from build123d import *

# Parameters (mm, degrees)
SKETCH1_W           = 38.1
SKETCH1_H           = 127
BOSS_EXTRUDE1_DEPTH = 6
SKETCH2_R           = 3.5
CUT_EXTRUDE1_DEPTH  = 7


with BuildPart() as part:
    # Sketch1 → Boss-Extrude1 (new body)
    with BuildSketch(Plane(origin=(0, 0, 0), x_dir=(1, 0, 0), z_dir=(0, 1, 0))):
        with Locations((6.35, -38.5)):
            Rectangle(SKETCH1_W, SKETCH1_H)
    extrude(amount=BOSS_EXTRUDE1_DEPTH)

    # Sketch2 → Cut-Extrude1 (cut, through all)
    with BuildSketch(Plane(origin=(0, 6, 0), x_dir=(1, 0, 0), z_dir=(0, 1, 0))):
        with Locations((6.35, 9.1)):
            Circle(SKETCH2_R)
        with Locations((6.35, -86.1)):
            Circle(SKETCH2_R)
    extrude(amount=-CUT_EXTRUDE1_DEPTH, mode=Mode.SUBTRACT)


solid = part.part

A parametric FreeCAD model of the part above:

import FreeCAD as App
import Part
import Sketcher


def add_polygon(sketch, points):
    """Adds a closed chain of lines whose ends are joined by coincident constraints."""
    first, n = sketch.GeometryCount, len(points)
    for a, b in zip(points, points[1:] + points[:1]):
        sketch.addGeometry(Part.LineSegment(App.Vector(*a, 0), App.Vector(*b, 0)), False)
    for i in range(n):
        sketch.addConstraint(Sketcher.Constraint("Coincident", first + i, 2, first + (i + 1) % n, 1))

doc = App.newDocument("Part")
params = doc.addObject("Spreadsheet::Sheet", "Params")
for row, (alias, value) in enumerate([
    ("sketch1_height", "127 mm"),
    ("sketch1_width", "38.1 mm"),
    ("pad1_length", "6 mm"),
    ("sketch2_diameter", "7 mm"),
], start=1):
    params.set(f"A{row}", alias)
    params.set(f"B{row}", "=" + value)
    params.setAlias(f"B{row}", alias)

body = doc.addObject("PartDesign::Body", "Body")

# Sketch on XZ plane
sketch1 = doc.addObject("Sketcher::SketchObject", "Sketch")
body.addObject(sketch1)
sketch1.AttachmentSupport = (doc.XZ_Plane, [""])
sketch1.MapMode = "FlatFace"
add_polygon(sketch1, [(-13, -25), (-13, 102), (25, 102), (25, -25)])  # lines 0-3
sketch1.addConstraint(Sketcher.Constraint("Vertical", 0))
sketch1.addConstraint(Sketcher.Constraint("Horizontal", 1))
sketch1.addConstraint(Sketcher.Constraint("Vertical", 2))
sketch1.addConstraint(Sketcher.Constraint("Horizontal", 3))
sketch1.addConstraint(Sketcher.Constraint("DistanceY", 0, 1, 0, 2, 127.0))
sketch1.addConstraint(Sketcher.Constraint("DistanceX", 1, 1, 1, 2, 38.1))
sketch1.addConstraint(Sketcher.Constraint("DistanceY", -1, 1, 0, 2, 102.0))
sketch1.addConstraint(Sketcher.Constraint("DistanceX", 0, 2, -1, 1, 12.7))
sketch1.setExpression("Constraints[8]", "Params.sketch1_height")
sketch1.setExpression("Constraints[9]", "Params.sketch1_width")
pad1 = doc.addObject("PartDesign::Pad", "Pad")
body.addObject(pad1)
pad1.Profile = sketch1
pad1.setExpression("Length", "Params.pad1_length")
pad1.Reversed = True

# Sketch on XZ plane
sketch2 = doc.addObject("Sketcher::SketchObject", "Sketch001")
body.addObject(sketch2)
sketch2.AttachmentSupport = (doc.XZ_Plane, [""])
sketch2.MapMode = "FlatFace"
sketch2.AttachmentOffset = App.Placement(App.Vector(0, 0, -6), App.Rotation())
sketch2.addGeometry(Part.Circle(App.Vector(6.3, -9.1, 0), App.Vector(0, 0, 1), 3.5), False)
sketch2.addGeometry(Part.Circle(App.Vector(6.3, 86.1, 0), App.Vector(0, 0, 1), 3.5), False)
sketch2.addConstraint(Sketcher.Constraint("Equal", 0, 1))
sketch2.addConstraint(Sketcher.Constraint("Vertical", 0, 3, 1, 3))
sketch2.addConstraint(Sketcher.Constraint("Diameter", 0, 7.0))
sketch2.addConstraint(Sketcher.Constraint("DistanceY", 0, 3, -1, 1, 9.1))
sketch2.addConstraint(Sketcher.Constraint("DistanceY", -1, 1, 1, 3, 86.1))
sketch2.addConstraint(Sketcher.Constraint("DistanceX", -1, 1, 0, 3, 6.35))
sketch2.setExpression("Constraints[2]", "Params.sketch2_diameter")
pocket1 = doc.addObject("PartDesign::Pocket", "Pocket")
body.addObject(pocket1)
pocket1.Profile = sketch2
pocket1.Type = "ThroughAll"
pocket1.Reversed = True

doc.recompute()
